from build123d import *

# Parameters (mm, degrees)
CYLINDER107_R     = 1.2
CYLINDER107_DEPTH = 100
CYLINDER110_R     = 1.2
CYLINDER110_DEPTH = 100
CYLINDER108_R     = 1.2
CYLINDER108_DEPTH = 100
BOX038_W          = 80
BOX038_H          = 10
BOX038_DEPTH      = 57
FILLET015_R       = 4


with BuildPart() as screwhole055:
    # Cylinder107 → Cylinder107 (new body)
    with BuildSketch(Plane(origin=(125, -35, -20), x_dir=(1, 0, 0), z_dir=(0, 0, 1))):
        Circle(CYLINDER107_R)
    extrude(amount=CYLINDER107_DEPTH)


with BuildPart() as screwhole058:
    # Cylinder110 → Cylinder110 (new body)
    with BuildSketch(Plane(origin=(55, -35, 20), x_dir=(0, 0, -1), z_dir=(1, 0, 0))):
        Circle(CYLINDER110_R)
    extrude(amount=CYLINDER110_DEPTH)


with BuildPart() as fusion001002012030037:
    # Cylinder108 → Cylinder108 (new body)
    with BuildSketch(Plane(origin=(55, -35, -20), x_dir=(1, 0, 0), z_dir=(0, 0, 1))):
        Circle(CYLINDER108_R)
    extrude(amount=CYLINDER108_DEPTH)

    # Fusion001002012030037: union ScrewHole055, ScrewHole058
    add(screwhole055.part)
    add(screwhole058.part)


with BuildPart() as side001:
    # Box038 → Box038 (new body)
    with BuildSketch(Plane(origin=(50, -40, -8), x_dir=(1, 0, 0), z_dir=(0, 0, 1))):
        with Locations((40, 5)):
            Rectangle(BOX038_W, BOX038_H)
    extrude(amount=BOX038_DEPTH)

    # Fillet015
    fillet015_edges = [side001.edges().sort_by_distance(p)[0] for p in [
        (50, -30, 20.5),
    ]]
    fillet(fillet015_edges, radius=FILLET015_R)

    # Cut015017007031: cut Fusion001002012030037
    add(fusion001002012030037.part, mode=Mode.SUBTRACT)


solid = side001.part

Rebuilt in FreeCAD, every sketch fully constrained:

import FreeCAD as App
import Part
import Sketcher
from FreeCAD import Vector
Q = App.Units.Quantity


def edges_at(feature, points):
    """Names of the edges that pass closest to the given points."""
    edges = feature.Shape.Edges
    near = lambda p: min(range(len(edges)), key=lambda i: edges[i].distToShape(Part.Vertex(*p))[0])
    return sorted({f"Edge{near(p) + 1}" for p in points})


def add_polygon(sketch, points):
    """Adds a closed chain of lines whose ends are joined by coincident constraints."""
    first, n = sketch.GeometryCount, len(points)
    for a, b in zip(points, points[1:] + points[:1]):
        sketch.addGeometry(Part.LineSegment(App.Vector(*a, 0), App.Vector(*b, 0)), False)
    for i in range(n):
        sketch.addConstraint(Sketcher.Constraint("Coincident", first + i, 2, first + (i + 1) % n, 1))

doc = App.newDocument("Part")
body = doc.addObject("PartDesign::Body", "Body")

# Sketch on XY plane
sketch1 = doc.addObject("Sketcher::SketchObject", "Sketch")
body.addObject(sketch1)
sketch1.AttachmentSupport = (doc.XY_Plane, [""])
sketch1.MapMode = "FlatFace"
sketch1.AttachmentOffset = App.Placement(Vector(0, 0, -20), App.Rotation())
sketch1.addGeometry(Part.Circle(Vector(125, -35, 0), Vector(0, 0, 1), 1.2), False)
sketch1.addConstraint([
    Sketcher.Constraint("Diameter", 0, Q("2.4 mm")),
    Sketcher.Constraint("DistanceX", -1, 1, 0, 3, Q("125 mm")),
    Sketcher.Constraint("DistanceY", 0, 3, -1, 1, Q("35 mm")),
])
pad1 = doc.addObject("PartDesign::Pad", "Pad")
body.addObject(pad1)
pad1.Profile = sketch1
pad1.Length = 100
body2 = doc.addObject("PartDesign::Body", "Body001")

# Sketch on YZ plane
sketch2 = doc.addObject("Sketcher::SketchObject", "Sketch001")
body2.addObject(sketch2)
sketch2.AttachmentSupport = (doc.getObject("YZ_Plane001"), [""])
sketch2.MapMode = "FlatFace"
sketch2.AttachmentOffset = App.Placement(Vector(0, 0, 55), App.Rotation())
sketch2.addGeometry(Part.Circle(Vector(-35, 20, 0), Vector(0, 0, 1), 1.2), False)
sketch2.addConstraint([
    Sketcher.Constraint("Diameter", 0, Q("2.4 mm")),
    Sketcher.Constraint("DistanceX", 0, 3, -1, 1, Q("35 mm")),
    Sketcher.Constraint("DistanceY", -1, 1, 0, 3, Q("20 mm")),
])
pad2 = doc.addObject("PartDesign::Pad", "Pad001")
body2.addObject(pad2)
pad2.Profile = sketch2
pad2.Length = 100
body3 = doc.addObject("PartDesign::Body", "Body002")
body3.AllowCompound = True

# Sketch on XY plane
sketch3 = doc.addObject("Sketcher::SketchObject", "Sketch002")
body3.addObject(sketch3)
sketch3.AttachmentSupport = (doc.getObject("XY_Plane002"), [""])
sketch3.MapMode = "FlatFace"
sketch3.AttachmentOffset = App.Placement(Vector(0, 0, -20), App.Rotation())
sketch3.addGeometry(Part.Circle(Vector(55, -35, 0), Vector(0, 0, 1), 1.2), False)
sketch3.addConstraint([
    Sketcher.Constraint("Diameter", 0, Q("2.4 mm")),
    Sketcher.Constraint("DistanceX", -1, 1, 0, 3, Q("55 mm")),
    Sketcher.Constraint("DistanceY", 0, 3, -1, 1, Q("35 mm")),
])
pad3 = doc.addObject("PartDesign::Pad", "Pad002")
body3.addObject(pad3)
pad3.Profile = sketch3
pad3.Length = 100
doc.recompute()

boolean = doc.addObject("PartDesign::Boolean", "Boolean")
body3.addObject(boolean)
boolean.Type = "Fuse"
boolean.addObjects([body])
doc.recompute()

boolean2 = doc.addObject("PartDesign::Boolean", "Boolean001")
body3.addObject(boolean2)
boolean2.Type = "Fuse"
boolean2.addObjects([body2])
body4 = doc.addObject("PartDesign::Body", "Body003")

# Sketch on XY plane
sketch4 = doc.addObject("Sketcher::SketchObject", "Sketch003")
body4.addObject(sketch4)
sketch4.AttachmentSupport = (doc.getObject("XY_Plane003"), [""])
sketch4.MapMode = "FlatFace"
sketch4.AttachmentOffset = App.Placement(Vector(0, 0, -8), App.Rotation())
add_polygon(sketch4, [(50, -30), (50, -40), (130, -40), (130, -30)])  # lines 0-3
sketch4.addConstraint([
    Sketcher.Constraint("Vertical", 0),
    Sketcher.Constraint("Horizontal", 1),
    Sketcher.Constraint("Vertical", 2),
    Sketcher.Constraint("Horizontal", 3),
    Sketcher.Constraint("DistanceX", 1, 1, 1, 2, Q("80 mm")),
    Sketcher.Constraint("DistanceY", 0, 2, 0, 1, Q("10 mm")),
    Sketcher.Constraint("DistanceX", -1, 1, 0, 2, Q("50 mm")),
    Sketcher.Constraint("DistanceY", 0, 2, -1, 1, Q("40 mm")),
])
pad4 = doc.addObject("PartDesign::Pad", "Pad003")
body4.addObject(pad4)
pad4.Profile = sketch4
pad4.Length = 57
doc.recompute()

fillet = doc.addObject("PartDesign::Fillet", "Fillet")
body4.addObject(fillet)
fillet.Base = (pad4, edges_at(pad4, [(50, -30, 20.5)]))
fillet.Radius = 4
doc.recompute()

boolean3 = doc.addObject("PartDesign::Boolean", "Boolean002")
body4.addObject(boolean3)
boolean3.Type = "Cut"
boolean3.addObjects([body3])

doc.recompute()
